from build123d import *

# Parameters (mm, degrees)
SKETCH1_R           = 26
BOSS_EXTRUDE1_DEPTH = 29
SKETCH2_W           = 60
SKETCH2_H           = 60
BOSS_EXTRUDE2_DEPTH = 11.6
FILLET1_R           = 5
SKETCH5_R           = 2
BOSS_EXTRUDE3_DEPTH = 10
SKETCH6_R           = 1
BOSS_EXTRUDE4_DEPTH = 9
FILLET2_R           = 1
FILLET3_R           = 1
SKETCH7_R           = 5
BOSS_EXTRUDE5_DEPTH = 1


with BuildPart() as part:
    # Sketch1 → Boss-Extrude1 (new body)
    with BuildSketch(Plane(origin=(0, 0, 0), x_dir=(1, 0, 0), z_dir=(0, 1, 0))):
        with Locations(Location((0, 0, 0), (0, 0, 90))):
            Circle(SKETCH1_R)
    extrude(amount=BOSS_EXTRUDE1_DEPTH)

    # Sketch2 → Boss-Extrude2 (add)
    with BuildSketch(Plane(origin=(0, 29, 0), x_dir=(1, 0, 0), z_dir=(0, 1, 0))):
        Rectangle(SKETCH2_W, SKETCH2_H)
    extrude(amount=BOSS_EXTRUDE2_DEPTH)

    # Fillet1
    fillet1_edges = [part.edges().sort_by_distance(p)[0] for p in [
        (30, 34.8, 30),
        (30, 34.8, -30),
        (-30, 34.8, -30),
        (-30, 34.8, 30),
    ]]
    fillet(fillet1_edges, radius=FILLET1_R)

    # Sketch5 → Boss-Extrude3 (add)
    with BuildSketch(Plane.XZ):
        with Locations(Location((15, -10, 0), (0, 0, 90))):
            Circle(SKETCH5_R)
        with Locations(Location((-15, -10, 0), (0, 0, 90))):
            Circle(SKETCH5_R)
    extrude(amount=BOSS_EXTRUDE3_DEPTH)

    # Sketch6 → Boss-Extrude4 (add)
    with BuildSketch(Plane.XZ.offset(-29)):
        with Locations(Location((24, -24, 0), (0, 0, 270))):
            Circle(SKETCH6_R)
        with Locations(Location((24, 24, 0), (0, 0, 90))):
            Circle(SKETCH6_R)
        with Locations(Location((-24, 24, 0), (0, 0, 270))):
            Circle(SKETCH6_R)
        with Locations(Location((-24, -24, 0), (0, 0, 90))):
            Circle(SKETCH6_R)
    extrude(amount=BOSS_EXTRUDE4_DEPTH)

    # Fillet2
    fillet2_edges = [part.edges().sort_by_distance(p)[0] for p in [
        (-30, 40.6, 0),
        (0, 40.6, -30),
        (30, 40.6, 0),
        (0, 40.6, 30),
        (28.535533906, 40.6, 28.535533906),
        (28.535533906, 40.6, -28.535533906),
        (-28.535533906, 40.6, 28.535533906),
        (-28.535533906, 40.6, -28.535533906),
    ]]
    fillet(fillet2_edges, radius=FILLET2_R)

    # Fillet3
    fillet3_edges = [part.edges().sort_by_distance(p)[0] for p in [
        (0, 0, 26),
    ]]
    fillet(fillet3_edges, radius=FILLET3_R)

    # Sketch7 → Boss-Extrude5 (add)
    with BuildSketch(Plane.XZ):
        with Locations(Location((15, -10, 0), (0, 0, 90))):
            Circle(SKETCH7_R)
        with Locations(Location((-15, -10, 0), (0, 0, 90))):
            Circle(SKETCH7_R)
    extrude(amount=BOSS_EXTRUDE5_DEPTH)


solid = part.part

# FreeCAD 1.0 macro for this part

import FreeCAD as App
import Part
import Sketcher


def edges_at(feature, points):
    """Names of the edges that pass closest to the given points."""
    edges = feature.Shape.Edges
    near = lambda p: min(range(len(edges)), key=lambda i: edges[i].distToShape(Part.Vertex(*p))[0])
    return sorted({f"Edge{near(p) + 1}" for p in points})


def add_polygon(sketch, points):
    """Adds a closed chain of lines whose ends are joined by coincident constraints."""
    first, n = sketch.GeometryCount, len(points)
    for a, b in zip(points, points[1:] + points[:1]):
        sketch.addGeometry(Part.LineSegment(App.Vector(*a, 0), App.Vector(*b, 0)), False)
    for i in range(n):
        sketch.addConstraint(Sketcher.Constraint("Coincident", first + i, 2, first + (i + 1) % n, 1))

doc = App.newDocument("Part")
body = doc.addObject("PartDesign::Body", "Body")

# Sketch on XZ plane
sketch1 = doc.addObject("Sketcher::SketchObject", "Sketch")
body.addObject(sketch1)
sketch1.AttachmentSupport = (doc.XZ_Plane, [""])
sketch1.MapMode = "FlatFace"
sketch1.addGeometry(Part.Circle(App.Vector(0, 0, 0), App.Vector(0, 0, 1), 26), False)
sketch1.addConstraint(Sketcher.Constraint("Coincident", 0, 3, -1, 1))
sketch1.addConstraint(Sketcher.Constraint("Diameter", 0, 52.0))
pad1 = doc.addObject("PartDesign::Pad", "Pad")
body.addObject(pad1)
pad1.Profile = sketch1
pad1.Length = 29
pad1.Reversed = True

# Sketch on XZ plane
sketch2 = doc.addObject("Sketcher::SketchObject", "Sketch001")
body.addObject(sketch2)
sketch2.AttachmentSupport = (doc.XZ_Plane, [""])
sketch2.MapMode = "FlatFace"
sketch2.AttachmentOffset = App.Placement(App.Vector(0, 0, -29), App.Rotation())
add_polygon(sketch2, [(-30, -30), (-30, 30), (30, 30), (30, -30)])  # lines 0-3
sketch2.addConstraint(Sketcher.Constraint("Vertical", 0))
sketch2.addConstraint(Sketcher.Constraint("Horizontal", 1))
sketch2.addConstraint(Sketcher.Constraint("Vertical", 2))
sketch2.addConstraint(Sketcher.Constraint("Horizontal", 3))
sketch2.addConstraint(Sketcher.Constraint("Symmetric", 0, 2, 2, 2, -1, 1))
sketch2.addConstraint(Sketcher.Constraint("Equal", 3, 0))
sketch2.addConstraint(Sketcher.Constraint("DistanceX", 1, 1, 1, 2, 60.0))
pad2 = doc.addObject("PartDesign::Pad", "Pad001")
body.addObject(pad2)
pad2.Profile = sketch2
pad2.Length = 11.6
pad2.Reversed = True
doc.recompute()

fillet = doc.addObject("PartDesign::Fillet", "Fillet")
body.addObject(fillet)
fillet.Base = (pad2, edges_at(pad2, [
    (30, 34.8, 30),
    (30, 34.8, -30),
    (-30, 34.8, -30),
    (-30, 34.8, 30),
]))
fillet.Radius = 5

# Sketch on XZ plane
sketch3 = doc.addObject("Sketcher::SketchObject", "Sketch002")
body.addObject(sketch3)
sketch3.AttachmentSupport = (doc.XZ_Plane, [""])
sketch3.MapMode = "FlatFace"
sketch3.addGeometry(Part.Circle(App.Vector(15, -10, 0), App.Vector(0, 0, 1), 2), False)
sketch3.addGeometry(Part.Circle(App.Vector(-15, -10, 0), App.Vector(0, 0, 1), 2), False)
sketch3.addConstraint(Sketcher.Constraint("Equal", 0, 1))
sketch3.addConstraint(Sketcher.Constraint("Symmetric", 0, 3, 1, 3, -2))
sketch3.addConstraint(Sketcher.Constraint("Diameter", 0, 4.0))
sketch3.addConstraint(Sketcher.Constraint("DistanceX", -1, 1, 0, 3, 15.0))
sketch3.addConstraint(Sketcher.Constraint("DistanceY", 0, 3, -1, 1, 10.0))
pad3 = doc.addObject("PartDesign::Pad", "Pad002")
body.addObject(pad3)
pad3.Profile = sketch3
pad3.Length = 10

# Sketch on XZ plane
sketch4 = doc.addObject("Sketcher::SketchObject", "Sketch003")
body.addObject(sketch4)
sketch4.AttachmentSupport = (doc.XZ_Plane, [""])
sketch4.MapMode = "FlatFace"
sketch4.AttachmentOffset = App.Placement(App.Vector(0, 0, -29), App.Rotation())
sketch4.addGeometry(Part.Circle(App.Vector(24, -24, 0), App.Vector(0, 0, 1), 1), False)
sketch4.addGeometry(Part.Circle(App.Vector(24, 24, 0), App.Vector(0, 0, 1), 1), False)
sketch4.addGeometry(Part.Circle(App.Vector(-24, 24, 0), App.Vector(0, 0, 1), 1), False)
sketch4.addGeometry(Part.Circle(App.Vector(-24, -24, 0), App.Vector(0, 0, 1), 1), False)
sketch4.addConstraint(Sketcher.Constraint("Equal", 0, 1))
sketch4.addConstraint(Sketcher.Constraint("Equal", 1, 2))
sketch4.addConstraint(Sketcher.Constraint("Equal", 2, 3))
sketch4.addConstraint(Sketcher.Constraint("Symmetric", 0, 3, 2, 3, -1, 1))
sketch4.addConstraint(Sketcher.Constraint("Symmetric", 1, 3, 3, 3, -1, 1))
sketch4.addConstraint(Sketcher.Constraint("Symmetric", 1, 3, 2, 3, -2))
sketch4.addConstraint(Sketcher.Constraint("Diameter", 0, 2.0))
sketch4.addConstraint(Sketcher.Constraint("DistanceX", -1, 1, 0, 3, 24.0))
sketch4.addConstraint(Sketcher.Constraint("DistanceY", 0, 3, -1, 1, 24.0))
pad4 = doc.addObject("PartDesign::Pad", "Pad003")
body.addObject(pad4)
pad4.Profile = sketch4
pad4.Length = 9
doc.recompute()

fillet2 = doc.addObject("PartDesign::Fillet", "Fillet001")
body.addObject(fillet2)
fillet2.Base = (pad4, edges_at(pad4, [
    (-30, 40.6, 0),
    (0, 40.6, -30),
    (30, 40.6, 0),
    (0, 40.6, 30),
    (28.536, 40.6, 28.536),
    (28.536, 40.6, -28.536),
    (-28.536, 40.6, 28.536),
    (-28.536, 40.6, -28.536),
]))
fillet2.Radius = 1
doc.recompute()

fillet3 = doc.addObject("PartDesign::Fillet", "Fillet002")
body.addObject(fillet3)
fillet3.Base = (fillet2, edges_at(fillet2, [(0, 0, 26)]))
fillet3.Radius = 1

# Sketch on XZ plane
sketch5 = doc.addObject("Sketcher::SketchObject", "Sketch004")
body.addObject(sketch5)
sketch5.AttachmentSupport = (doc.XZ_Plane, [""])
sketch5.MapMode = "FlatFace"
sketch5.addGeometry(Part.Circle(App.Vector(15, -10, 0), App.Vector(0, 0, 1), 5), False)
sketch5.addGeometry(Part.Circle(App.Vector(-15, -10, 0), App.Vector(0, 0, 1), 5), False)
sketch5.addConstraint(Sketcher.Constraint("Equal", 0, 1))
sketch5.addConstraint(Sketcher.Constraint("Symmetric", 0, 3, 1, 3, -2))
sketch5.addConstraint(Sketcher.Constraint("Diameter", 0, 10.0))
sketch5.addConstraint(Sketcher.Constraint("DistanceX", -1, 1, 0, 3, 15.0))
sketch5.addConstraint(Sketcher.Constraint("DistanceY", 0, 3, -1, 1, 10.0))
pad5 = doc.addObject("PartDesign::Pad", "Pad004")
body.addObject(pad5)
pad5.Profile = sketch5
pad5.Length = 1

doc.recompute()
